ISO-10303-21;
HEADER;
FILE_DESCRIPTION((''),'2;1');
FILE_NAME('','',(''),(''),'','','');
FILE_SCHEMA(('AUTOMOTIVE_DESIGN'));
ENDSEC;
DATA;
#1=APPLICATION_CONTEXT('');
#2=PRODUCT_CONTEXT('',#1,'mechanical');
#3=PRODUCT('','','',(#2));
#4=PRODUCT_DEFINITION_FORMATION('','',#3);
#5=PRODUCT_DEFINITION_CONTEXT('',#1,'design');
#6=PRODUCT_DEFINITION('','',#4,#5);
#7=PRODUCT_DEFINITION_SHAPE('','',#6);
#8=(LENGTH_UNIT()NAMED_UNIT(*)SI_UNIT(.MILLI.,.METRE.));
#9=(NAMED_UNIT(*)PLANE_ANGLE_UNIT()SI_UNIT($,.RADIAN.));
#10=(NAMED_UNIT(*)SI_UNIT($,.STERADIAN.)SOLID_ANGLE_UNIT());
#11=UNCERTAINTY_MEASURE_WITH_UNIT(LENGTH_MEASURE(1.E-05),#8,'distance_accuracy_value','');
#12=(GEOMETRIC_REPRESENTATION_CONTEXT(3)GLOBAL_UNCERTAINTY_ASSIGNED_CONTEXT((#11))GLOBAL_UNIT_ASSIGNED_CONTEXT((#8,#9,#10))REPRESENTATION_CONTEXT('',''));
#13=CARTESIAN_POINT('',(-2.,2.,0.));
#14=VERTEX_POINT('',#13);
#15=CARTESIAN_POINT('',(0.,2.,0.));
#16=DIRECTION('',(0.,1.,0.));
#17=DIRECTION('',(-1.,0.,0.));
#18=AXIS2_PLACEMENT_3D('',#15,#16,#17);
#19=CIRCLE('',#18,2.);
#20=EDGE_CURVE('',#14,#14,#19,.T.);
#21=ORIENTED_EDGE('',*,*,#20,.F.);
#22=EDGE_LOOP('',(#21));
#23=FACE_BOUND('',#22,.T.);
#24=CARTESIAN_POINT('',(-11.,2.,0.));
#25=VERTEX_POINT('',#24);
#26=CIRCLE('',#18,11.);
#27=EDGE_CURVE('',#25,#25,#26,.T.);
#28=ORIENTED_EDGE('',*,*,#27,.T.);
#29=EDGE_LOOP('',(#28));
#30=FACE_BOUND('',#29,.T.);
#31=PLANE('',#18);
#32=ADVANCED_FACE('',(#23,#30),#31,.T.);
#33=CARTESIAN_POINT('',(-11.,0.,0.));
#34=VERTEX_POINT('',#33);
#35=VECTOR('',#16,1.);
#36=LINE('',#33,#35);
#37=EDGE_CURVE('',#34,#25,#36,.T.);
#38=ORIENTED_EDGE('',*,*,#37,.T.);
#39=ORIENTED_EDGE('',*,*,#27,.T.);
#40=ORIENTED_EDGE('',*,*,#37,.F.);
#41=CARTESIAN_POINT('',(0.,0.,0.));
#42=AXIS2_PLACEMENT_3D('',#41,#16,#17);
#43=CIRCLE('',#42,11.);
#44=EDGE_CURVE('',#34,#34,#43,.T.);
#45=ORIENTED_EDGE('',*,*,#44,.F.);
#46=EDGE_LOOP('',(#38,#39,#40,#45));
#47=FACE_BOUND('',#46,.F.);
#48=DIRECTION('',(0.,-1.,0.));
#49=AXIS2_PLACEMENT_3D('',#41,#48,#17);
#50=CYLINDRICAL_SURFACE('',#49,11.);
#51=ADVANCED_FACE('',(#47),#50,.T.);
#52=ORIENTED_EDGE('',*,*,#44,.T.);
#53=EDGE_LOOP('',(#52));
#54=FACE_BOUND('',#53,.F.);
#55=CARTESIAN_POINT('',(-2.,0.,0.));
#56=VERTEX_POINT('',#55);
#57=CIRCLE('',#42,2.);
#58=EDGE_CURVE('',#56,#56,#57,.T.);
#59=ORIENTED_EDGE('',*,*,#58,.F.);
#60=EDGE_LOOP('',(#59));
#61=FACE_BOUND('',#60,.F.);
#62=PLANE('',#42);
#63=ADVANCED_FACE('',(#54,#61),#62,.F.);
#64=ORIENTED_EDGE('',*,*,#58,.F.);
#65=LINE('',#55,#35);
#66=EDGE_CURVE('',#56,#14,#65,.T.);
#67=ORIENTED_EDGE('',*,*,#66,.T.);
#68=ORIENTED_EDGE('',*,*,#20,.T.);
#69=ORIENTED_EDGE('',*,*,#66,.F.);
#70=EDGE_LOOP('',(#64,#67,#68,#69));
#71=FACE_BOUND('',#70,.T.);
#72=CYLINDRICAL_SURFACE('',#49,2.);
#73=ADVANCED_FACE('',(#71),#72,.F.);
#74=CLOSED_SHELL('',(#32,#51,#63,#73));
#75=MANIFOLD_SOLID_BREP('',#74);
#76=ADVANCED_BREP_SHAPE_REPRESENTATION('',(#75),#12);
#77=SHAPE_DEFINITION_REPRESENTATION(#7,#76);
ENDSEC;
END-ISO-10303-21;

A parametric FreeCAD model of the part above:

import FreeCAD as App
import Part
import Sketcher

doc = App.newDocument("Part")
body = doc.addObject("PartDesign::Body", "Body")

sketch1 = doc.addObject("Sketcher::SketchObject", "Sketch")
body.addObject(sketch1)
sketch1.AttachmentSupport = (doc.XZ_Plane, [""])
sketch1.MapMode = "FlatFace"
sketch1.addGeometry(Part.Circle(App.Vector(0, 0, 0), App.Vector(0, 0, 1), 11), False)
sketch1.addGeometry(Part.Circle(App.Vector(0, 0, 0), App.Vector(0, 0, 1), 2), False)
sketch1.addConstraint(Sketcher.Constraint("Coincident", 0, 3, -1, 1))
sketch1.addConstraint(Sketcher.Constraint("Coincident", 1, 3, -1, 1))
sketch1.addConstraint(Sketcher.Constraint("Diameter", 0, 22.0))
sketch1.addConstraint(Sketcher.Constraint("Diameter", 1, 4.0))
pad1 = doc.addObject("PartDesign::Pad", "Pad")
body.addObject(pad1)
pad1.Profile = sketch1
pad1.Length = 2
pad1.Reversed = True

doc.recompute()
